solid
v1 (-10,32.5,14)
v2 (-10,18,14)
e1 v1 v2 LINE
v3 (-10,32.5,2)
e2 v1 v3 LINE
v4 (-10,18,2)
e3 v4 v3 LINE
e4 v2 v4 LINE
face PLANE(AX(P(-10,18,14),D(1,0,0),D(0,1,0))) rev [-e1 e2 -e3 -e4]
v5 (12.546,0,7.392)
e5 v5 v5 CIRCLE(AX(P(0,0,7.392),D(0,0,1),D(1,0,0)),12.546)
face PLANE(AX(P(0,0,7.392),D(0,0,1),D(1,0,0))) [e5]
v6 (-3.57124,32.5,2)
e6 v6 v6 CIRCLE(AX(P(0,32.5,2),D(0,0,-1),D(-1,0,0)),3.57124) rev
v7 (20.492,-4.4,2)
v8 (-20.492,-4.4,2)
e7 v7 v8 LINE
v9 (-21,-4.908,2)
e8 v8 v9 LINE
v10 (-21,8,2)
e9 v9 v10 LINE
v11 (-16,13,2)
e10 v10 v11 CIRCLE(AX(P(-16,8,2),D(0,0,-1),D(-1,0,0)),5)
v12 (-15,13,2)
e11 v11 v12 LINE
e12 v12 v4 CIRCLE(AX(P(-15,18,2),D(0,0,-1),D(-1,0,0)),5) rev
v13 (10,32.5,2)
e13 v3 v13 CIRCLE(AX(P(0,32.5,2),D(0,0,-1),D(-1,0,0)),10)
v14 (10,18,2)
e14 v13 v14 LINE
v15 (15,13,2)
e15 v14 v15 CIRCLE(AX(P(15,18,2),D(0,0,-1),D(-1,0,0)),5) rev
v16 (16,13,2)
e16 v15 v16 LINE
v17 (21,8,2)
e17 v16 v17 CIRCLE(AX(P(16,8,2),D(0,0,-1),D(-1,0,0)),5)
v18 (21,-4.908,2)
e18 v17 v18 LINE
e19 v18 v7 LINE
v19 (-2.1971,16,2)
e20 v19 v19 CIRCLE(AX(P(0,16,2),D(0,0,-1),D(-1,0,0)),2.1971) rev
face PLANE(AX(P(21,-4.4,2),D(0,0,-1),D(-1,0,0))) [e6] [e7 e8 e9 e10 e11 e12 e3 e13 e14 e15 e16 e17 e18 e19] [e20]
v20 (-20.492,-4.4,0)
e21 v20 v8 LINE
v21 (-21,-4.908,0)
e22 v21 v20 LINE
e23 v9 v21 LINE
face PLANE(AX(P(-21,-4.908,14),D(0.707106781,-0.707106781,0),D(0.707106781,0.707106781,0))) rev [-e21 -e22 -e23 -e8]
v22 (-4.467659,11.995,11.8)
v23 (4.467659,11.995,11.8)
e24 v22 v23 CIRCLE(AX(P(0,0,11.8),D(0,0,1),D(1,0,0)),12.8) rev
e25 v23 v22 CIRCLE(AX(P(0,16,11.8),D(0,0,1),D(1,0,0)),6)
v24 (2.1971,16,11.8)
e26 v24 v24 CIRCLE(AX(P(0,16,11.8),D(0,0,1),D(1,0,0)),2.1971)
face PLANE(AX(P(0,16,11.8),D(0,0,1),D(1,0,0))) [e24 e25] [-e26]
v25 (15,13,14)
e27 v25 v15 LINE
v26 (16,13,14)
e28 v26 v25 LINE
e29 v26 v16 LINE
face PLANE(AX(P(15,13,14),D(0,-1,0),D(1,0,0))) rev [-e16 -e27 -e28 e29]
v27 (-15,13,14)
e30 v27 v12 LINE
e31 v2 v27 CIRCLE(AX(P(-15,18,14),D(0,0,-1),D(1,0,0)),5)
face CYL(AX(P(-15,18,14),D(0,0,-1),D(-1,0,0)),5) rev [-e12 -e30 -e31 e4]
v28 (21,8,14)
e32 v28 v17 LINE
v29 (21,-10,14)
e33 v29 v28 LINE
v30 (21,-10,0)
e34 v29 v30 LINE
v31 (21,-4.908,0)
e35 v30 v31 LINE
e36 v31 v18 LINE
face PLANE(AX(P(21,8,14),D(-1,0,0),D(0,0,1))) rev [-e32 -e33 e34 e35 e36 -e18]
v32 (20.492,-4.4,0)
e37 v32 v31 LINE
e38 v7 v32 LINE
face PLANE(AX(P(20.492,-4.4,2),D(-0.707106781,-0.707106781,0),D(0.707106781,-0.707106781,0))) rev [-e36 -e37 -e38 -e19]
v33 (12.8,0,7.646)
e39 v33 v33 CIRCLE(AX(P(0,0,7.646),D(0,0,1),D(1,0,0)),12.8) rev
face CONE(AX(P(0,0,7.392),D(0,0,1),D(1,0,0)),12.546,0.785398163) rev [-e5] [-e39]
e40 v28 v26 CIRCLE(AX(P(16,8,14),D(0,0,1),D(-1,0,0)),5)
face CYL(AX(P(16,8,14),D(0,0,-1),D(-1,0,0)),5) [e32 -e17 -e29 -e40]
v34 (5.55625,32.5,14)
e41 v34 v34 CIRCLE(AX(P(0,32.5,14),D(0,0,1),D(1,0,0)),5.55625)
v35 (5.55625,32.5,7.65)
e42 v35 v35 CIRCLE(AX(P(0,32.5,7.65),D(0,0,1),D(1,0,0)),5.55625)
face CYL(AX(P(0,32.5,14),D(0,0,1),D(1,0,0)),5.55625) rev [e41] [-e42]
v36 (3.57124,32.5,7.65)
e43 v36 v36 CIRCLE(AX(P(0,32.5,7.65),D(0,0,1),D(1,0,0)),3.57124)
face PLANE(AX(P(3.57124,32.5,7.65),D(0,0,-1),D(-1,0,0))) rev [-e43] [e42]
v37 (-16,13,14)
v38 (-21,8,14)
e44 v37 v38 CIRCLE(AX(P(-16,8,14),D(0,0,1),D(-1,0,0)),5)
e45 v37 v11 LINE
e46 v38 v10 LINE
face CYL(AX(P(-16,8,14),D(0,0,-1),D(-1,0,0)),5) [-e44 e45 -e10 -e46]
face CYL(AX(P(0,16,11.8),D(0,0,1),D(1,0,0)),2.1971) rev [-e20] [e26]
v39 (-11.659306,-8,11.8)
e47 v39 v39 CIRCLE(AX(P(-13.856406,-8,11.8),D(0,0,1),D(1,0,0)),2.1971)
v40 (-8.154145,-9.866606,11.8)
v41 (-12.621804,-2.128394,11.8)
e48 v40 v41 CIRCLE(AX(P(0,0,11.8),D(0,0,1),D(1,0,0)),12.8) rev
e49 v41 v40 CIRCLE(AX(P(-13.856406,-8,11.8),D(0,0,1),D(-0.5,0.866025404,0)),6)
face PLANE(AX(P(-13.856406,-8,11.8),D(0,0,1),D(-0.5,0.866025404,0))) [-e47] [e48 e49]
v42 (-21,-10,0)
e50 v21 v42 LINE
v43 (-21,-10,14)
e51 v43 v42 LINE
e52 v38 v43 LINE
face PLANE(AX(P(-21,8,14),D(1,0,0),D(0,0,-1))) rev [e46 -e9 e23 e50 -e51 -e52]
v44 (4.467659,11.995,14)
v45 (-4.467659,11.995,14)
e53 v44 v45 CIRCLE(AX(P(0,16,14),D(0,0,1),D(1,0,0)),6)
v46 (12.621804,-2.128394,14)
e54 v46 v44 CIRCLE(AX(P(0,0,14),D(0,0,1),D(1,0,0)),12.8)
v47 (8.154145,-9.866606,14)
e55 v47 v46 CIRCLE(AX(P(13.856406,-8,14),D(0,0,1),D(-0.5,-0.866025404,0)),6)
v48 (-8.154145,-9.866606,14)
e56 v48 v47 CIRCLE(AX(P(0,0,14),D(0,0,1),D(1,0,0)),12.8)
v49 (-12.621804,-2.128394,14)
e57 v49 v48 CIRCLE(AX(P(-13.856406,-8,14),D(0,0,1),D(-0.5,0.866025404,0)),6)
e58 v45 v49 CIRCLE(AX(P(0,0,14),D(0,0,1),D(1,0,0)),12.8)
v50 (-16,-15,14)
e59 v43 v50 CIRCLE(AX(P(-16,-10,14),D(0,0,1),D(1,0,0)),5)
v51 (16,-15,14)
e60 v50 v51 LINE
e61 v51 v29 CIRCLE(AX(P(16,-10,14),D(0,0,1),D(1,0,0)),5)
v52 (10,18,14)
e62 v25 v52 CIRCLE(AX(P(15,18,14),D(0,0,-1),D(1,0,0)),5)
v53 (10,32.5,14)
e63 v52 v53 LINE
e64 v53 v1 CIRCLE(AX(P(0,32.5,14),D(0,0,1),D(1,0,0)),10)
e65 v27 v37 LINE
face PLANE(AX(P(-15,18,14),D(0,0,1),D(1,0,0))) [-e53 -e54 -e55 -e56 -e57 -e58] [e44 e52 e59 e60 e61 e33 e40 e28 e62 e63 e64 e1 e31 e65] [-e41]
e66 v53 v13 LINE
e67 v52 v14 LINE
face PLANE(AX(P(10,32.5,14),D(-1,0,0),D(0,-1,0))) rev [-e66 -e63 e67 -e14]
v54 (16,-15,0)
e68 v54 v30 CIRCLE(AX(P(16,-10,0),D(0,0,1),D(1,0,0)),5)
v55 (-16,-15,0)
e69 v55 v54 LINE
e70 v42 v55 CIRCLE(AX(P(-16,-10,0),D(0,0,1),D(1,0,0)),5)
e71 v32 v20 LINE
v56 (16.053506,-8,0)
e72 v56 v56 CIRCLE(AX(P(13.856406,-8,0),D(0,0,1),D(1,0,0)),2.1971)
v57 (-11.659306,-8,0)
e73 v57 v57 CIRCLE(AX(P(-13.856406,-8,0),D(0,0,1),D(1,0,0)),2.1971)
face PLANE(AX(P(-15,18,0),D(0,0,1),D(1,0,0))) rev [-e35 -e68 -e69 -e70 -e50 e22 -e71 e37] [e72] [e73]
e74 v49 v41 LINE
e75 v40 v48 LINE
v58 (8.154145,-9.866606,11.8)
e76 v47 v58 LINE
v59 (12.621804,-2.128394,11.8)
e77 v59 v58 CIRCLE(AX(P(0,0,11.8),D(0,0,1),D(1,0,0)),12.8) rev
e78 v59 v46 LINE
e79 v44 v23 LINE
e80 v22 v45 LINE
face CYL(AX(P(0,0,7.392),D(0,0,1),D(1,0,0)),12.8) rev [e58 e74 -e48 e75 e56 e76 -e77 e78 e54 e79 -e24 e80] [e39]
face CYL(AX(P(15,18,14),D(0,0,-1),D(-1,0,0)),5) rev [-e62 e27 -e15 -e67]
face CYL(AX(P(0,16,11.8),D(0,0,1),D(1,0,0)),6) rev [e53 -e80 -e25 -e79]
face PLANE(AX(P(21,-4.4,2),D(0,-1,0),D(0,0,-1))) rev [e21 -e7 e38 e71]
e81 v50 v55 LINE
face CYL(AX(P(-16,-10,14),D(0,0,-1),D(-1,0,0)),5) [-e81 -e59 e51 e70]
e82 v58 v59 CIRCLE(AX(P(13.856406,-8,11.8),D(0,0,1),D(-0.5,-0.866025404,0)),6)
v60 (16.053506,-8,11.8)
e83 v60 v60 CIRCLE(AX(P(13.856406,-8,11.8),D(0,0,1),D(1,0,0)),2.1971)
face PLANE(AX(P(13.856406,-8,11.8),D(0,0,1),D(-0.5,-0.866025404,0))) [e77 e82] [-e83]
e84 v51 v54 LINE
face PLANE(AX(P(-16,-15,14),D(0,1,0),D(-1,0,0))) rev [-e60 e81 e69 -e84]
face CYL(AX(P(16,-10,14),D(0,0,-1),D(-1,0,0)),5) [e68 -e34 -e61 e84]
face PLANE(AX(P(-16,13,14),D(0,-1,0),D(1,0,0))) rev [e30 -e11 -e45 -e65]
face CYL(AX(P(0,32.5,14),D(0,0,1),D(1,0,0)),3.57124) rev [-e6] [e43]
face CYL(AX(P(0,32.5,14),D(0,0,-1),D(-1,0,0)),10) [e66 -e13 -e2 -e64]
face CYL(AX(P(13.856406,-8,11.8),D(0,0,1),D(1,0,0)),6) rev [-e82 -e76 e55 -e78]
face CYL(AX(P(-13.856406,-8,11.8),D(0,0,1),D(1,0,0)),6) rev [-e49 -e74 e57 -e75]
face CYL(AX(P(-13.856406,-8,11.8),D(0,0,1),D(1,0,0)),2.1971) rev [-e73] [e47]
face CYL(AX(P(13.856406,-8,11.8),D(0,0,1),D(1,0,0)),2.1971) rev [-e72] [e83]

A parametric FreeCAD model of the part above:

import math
import FreeCAD as App
import Part
import Sketcher
Q = App.Units.Quantity


def edges_at(feature, points):
    """Names of the edges that pass closest to the given points."""
    edges = feature.Shape.Edges
    near = lambda p: min(range(len(edges)), key=lambda i: edges[i].distToShape(Part.Vertex(*p))[0])
    return sorted({f"Edge{near(p) + 1}" for p in points})


def add_polygon(sketch, points):
    """Adds a closed chain of lines whose ends are joined by coincident constraints."""
    first, n = sketch.GeometryCount, len(points)
    for a, b in zip(points, points[1:] + points[:1]):
        sketch.addGeometry(Part.LineSegment(App.Vector(*a, 0), App.Vector(*b, 0)), False)
    for i in range(n):
        sketch.addConstraint(Sketcher.Constraint("Coincident", first + i, 2, first + (i + 1) % n, 1))

doc = App.newDocument("Part")
body = doc.addObject("PartDesign::Body", "Body")

sketch1 = doc.addObject("Sketcher::SketchObject", "Sketch")
body.addObject(sketch1)
sketch1.AttachmentSupport = (doc.XY_Plane, [""])
sketch1.MapMode = "FlatFace"
sketch1.addGeometry(Part.LineSegment(App.Vector(-10, 32.5, 0), App.Vector(-10, 18, 0)), False)
sketch1.addGeometry(Part.ArcOfCircle(Part.Circle(App.Vector(-15, 18, 0), App.Vector(0, 0, 1), 5), math.radians(-90), math.radians(0)), False)
sketch1.addGeometry(Part.LineSegment(App.Vector(-15, 13, 0), App.Vector(-16, 13, 0)), False)
sketch1.addGeometry(Part.ArcOfCircle(Part.Circle(App.Vector(-16, 8, 0), App.Vector(0, 0, 1), 5), math.radians(90), math.radians(180)), False)
sketch1.addGeometry(Part.LineSegment(App.Vector(-21, 8, 0), App.Vector(-21, -10, 0)), False)
sketch1.addGeometry(Part.ArcOfCircle(Part.Circle(App.Vector(-16, -10, 0), App.Vector(0, 0, 1), 5), math.radians(180), math.radians(270)), False)
sketch1.addGeometry(Part.LineSegment(App.Vector(-16, -15, 0), App.Vector(16, -15, 0)), False)
sketch1.addGeometry(Part.ArcOfCircle(Part.Circle(App.Vector(16, -10, 0), App.Vector(0, 0, 1), 5), math.radians(-90), math.radians(0)), False)
sketch1.addGeometry(Part.LineSegment(App.Vector(21, -10, 0), App.Vector(21, 8, 0)), False)
sketch1.addGeometry(Part.ArcOfCircle(Part.Circle(App.Vector(16, 8, 0), App.Vector(0, 0, 1), 5), math.radians(0), math.radians(90)), False)
sketch1.addGeometry(Part.LineSegment(App.Vector(16, 13, 0), App.Vector(15, 13, 0)), False)
sketch1.addGeometry(Part.ArcOfCircle(Part.Circle(App.Vector(15, 18, 0), App.Vector(0, 0, 1), 5), math.radians(180), math.radians(270)), False)
sketch1.addGeometry(Part.LineSegment(App.Vector(10, 18, 0), App.Vector(10, 32.5, 0)), False)
sketch1.addGeometry(Part.ArcOfCircle(Part.Circle(App.Vector(0, 32.5, 0), App.Vector(0, 0, 1), 10), math.radians(0), math.radians(180)), False)
sketch1.addConstraint(Sketcher.Constraint("Tangent", 0, 2, 1, 2))
sketch1.addConstraint(Sketcher.Constraint("Tangent", 1, 1, 2, 1))
sketch1.addConstraint(Sketcher.Constraint("Tangent", 2, 2, 3, 1))
sketch1.addConstraint(Sketcher.Constraint("Tangent", 3, 2, 4, 1))
sketch1.addConstraint(Sketcher.Constraint("Tangent", 4, 2, 5, 1))
sketch1.addConstraint(Sketcher.Constraint("Tangent", 5, 2, 6, 1))
sketch1.addConstraint(Sketcher.Constraint("Tangent", 6, 2, 7, 1))
sketch1.addConstraint(Sketcher.Constraint("Tangent", 7, 2, 8, 1))
sketch1.addConstraint(Sketcher.Constraint("Tangent", 8, 2, 9, 1))
sketch1.addConstraint(Sketcher.Constraint("Tangent", 9, 2, 10, 1))
sketch1.addConstraint(Sketcher.Constraint("Tangent", 10, 2, 11, 2))
sketch1.addConstraint(Sketcher.Constraint("Tangent", 11, 1, 12, 1))
sketch1.addConstraint(Sketcher.Constraint("Tangent", 12, 2, 13, 1))
sketch1.addConstraint(Sketcher.Constraint("Tangent", 13, 2, 0, 1))
sketch1.addConstraint(Sketcher.Constraint("Vertical", 0))
sketch1.addConstraint(Sketcher.Constraint("Horizontal", 2))
sketch1.addConstraint(Sketcher.Constraint("Vertical", 4))
sketch1.addConstraint(Sketcher.Constraint("Horizontal", 6))
sketch1.addConstraint(Sketcher.Constraint("Vertical", 8))
sketch1.addConstraint(Sketcher.Constraint("Horizontal", 10))
sketch1.addConstraint(Sketcher.Constraint("Vertical", 12))
sketch1.addConstraint(Sketcher.Constraint("Equal", 1, 3))
sketch1.addConstraint(Sketcher.Constraint("Equal", 3, 5))
sketch1.addConstraint(Sketcher.Constraint("Equal", 5, 7))
sketch1.addConstraint(Sketcher.Constraint("Equal", 7, 9))
sketch1.addConstraint(Sketcher.Constraint("Equal", 9, 11))
sketch1.addConstraint(Sketcher.Constraint("Symmetric", 3, 3, 9, 3, -2))
sketch1.addConstraint(Sketcher.Constraint("PointOnObject", 13, 3, -2))
sketch1.addConstraint(Sketcher.Constraint("Radius", 1, Q("5 mm")))
sketch1.addConstraint(Sketcher.Constraint("Radius", 13, Q("10 mm")))
sketch1.addConstraint(Sketcher.Constraint("DistanceX", 2, 2, 2, 1, Q("1 mm")))
sketch1.addConstraint(Sketcher.Constraint("DistanceY", 4, 2, 4, 1, Q("18 mm")))
sketch1.addConstraint(Sketcher.Constraint("DistanceY", 0, 2, 0, 1, Q("14.5 mm")))
sketch1.addConstraint(Sketcher.Constraint("DistanceY", -1, 1, 1, 3, Q("18 mm")))
pad1 = doc.addObject("PartDesign::Pad", "Pad")
body.addObject(pad1)
pad1.Profile = sketch1
pad1.Length = 14

sketch2 = doc.addObject("Sketcher::SketchObject", "Sketch001")
body.addObject(sketch2)
sketch2.AttachmentSupport = (doc.XY_Plane, [""])
sketch2.MapMode = "FlatFace"
sketch2.AttachmentOffset = App.Placement(App.Vector(0, 0, 14), App.Rotation())
sketch2.addGeometry(Part.Circle(App.Vector(0, 0, 0), App.Vector(0, 0, 1), 12.8), False)
sketch2.addConstraint(Sketcher.Constraint("Coincident", 0, 3, -1, 1))
sketch2.addConstraint(Sketcher.Constraint("Diameter", 0, Q("25.6 mm")))
pocket1 = doc.addObject("PartDesign::Pocket", "Pocket")
body.addObject(pocket1)
pocket1.Profile = sketch2
pocket1.Length = 6.608

sketch3 = doc.addObject("Sketcher::SketchObject", "Sketch002")
body.addObject(sketch3)
sketch3.AttachmentSupport = (doc.XY_Plane, [""])
sketch3.MapMode = "FlatFace"
sketch3.AttachmentOffset = App.Placement(App.Vector(0, 0, 14), App.Rotation())
sketch3.addGeometry(Part.Circle(App.Vector(0, 32.5, 0), App.Vector(0, 0, 1), 3.57124), False)
sketch3.addConstraint(Sketcher.Constraint("PointOnObject", 0, 3, -2))
sketch3.addConstraint(Sketcher.Constraint("DistanceY", -1, 1, 0, 3, Q("32.5 mm")))
sketch3.addConstraint(Sketcher.Constraint("Diameter", 0, Q("7.14248 mm")))
doc.recompute()
hole = doc.addObject("PartDesign::Hole", "Hole")
body.addObject(hole)
hole.Profile = sketch3
hole.ThreadType = "None"
hole.Diameter = 7.14248
hole.DepthType = "ThroughAll"
hole.HoleCutType = "Counterbore"
hole.HoleCutDiameter = 11.1125
hole.HoleCutDepth = 6.35

sketch4 = doc.addObject("Sketcher::SketchObject", "Sketch003")
body.addObject(sketch4)
sketch4.AttachmentSupport = (doc.XY_Plane, [""])
sketch4.MapMode = "FlatFace"
sketch4.AttachmentOffset = App.Placement(App.Vector(0, 0, 14), App.Rotation())
sketch4.addGeometry(Part.Circle(App.Vector(0, 16, 0), App.Vector(0, 0, 1), 6), False)
sketch4.addConstraint(Sketcher.Constraint("PointOnObject", 0, 3, -2))
sketch4.addConstraint(Sketcher.Constraint("Diameter", 0, Q("12 mm")))
sketch4.addConstraint(Sketcher.Constraint("DistanceY", -1, 1, 0, 3, Q("16 mm")))
pocket2 = doc.addObject("PartDesign::Pocket", "Pocket001")
body.addObject(pocket2)
pocket2.Profile = sketch4
pocket2.Length = 2.2
doc.recompute()

polarpattern = doc.addObject("PartDesign::PolarPattern", "PolarPattern")
body.addObject(polarpattern)
polarpattern.Originals = [pocket2]
polarpattern.Axis = (doc.Z_Axis, [""])
polarpattern.Angle = 360
polarpattern.Occurrences = 3
body.Tip = polarpattern

sketch5 = doc.addObject("Sketcher::SketchObject", "Sketch004")
body.addObject(sketch5)
sketch5.AttachmentSupport = (doc.XY_Plane, [""])
sketch5.MapMode = "FlatFace"
sketch5.AttachmentOffset = App.Placement(App.Vector(0, 0, 11.8), App.Rotation())
sketch5.addGeometry(Part.Circle(App.Vector(0, 16, 0), App.Vector(0, 0, 1), 2.1971), False)
sketch5.addGeometry(Part.Circle(App.Vector(-13.856406, -8, 0), App.Vector(0, 0, 1), 2.1971), False)
sketch5.addGeometry(Part.Circle(App.Vector(13.856406, -8, 0), App.Vector(0, 0, 1), 2.1971), False)
sketch5.addConstraint(Sketcher.Constraint("Equal", 0, 1))
sketch5.addConstraint(Sketcher.Constraint("Equal", 1, 2))
sketch5.addConstraint(Sketcher.Constraint("Symmetric", 1, 3, 2, 3, -2))
sketch5.addConstraint(Sketcher.Constraint("PointOnObject", 0, 3, -2))
sketch5.addConstraint(Sketcher.Constraint("DistanceY", -1, 1, 0, 3, Q("16 mm")))
sketch5.addConstraint(Sketcher.Constraint("DistanceY", 1, 3, -1, 1, Q("8 mm")))
sketch5.addConstraint(Sketcher.Constraint("Diameter", 0, Q("4.3942 mm")))
sketch5.addConstraint(Sketcher.Constraint("DistanceX", 1, 3, -1, 1, Q("13.856406 mm")))
doc.recompute()
hole2 = doc.addObject("PartDesign::Hole", "Hole001")
body.addObject(hole2)
hole2.Profile = sketch5
hole2.ThreadType = "None"
hole2.Diameter = 4.3942
hole2.DepthType = "Dimension"
hole2.Depth = 13.322
hole2.DrillPoint = "Angled"
hole2.DrillPointAngle = 118

sketch6 = doc.addObject("Sketcher::SketchObject", "Sketch005")
body.addObject(sketch6)
sketch6.AttachmentSupport = (doc.XY_Plane, [""])
sketch6.MapMode = "FlatFace"
add_polygon(sketch6, [(21, 42.5), (21, -4.4), (-21, -4.4), (-21, 42.5)])
sketch6.addConstraint(Sketcher.Constraint("Vertical", 0))
sketch6.addConstraint(Sketcher.Constraint("Horizontal", 1))
sketch6.addConstraint(Sketcher.Constraint("Vertical", 2))
sketch6.addConstraint(Sketcher.Constraint("Horizontal", 3))
sketch6.addConstraint(Sketcher.Constraint("DistanceX", 1, 2, 1, 1, Q("42 mm")))
sketch6.addConstraint(Sketcher.Constraint("DistanceY", 0, 2, 0, 1, Q("46.9 mm")))
sketch6.addConstraint(Sketcher.Constraint("DistanceX", -1, 1, 0, 2, Q("21 mm")))
sketch6.addConstraint(Sketcher.Constraint("DistanceY", 0, 2, -1, 1, Q("4.4 mm")))
pocket3 = doc.addObject("PartDesign::Pocket", "Pocket002")
body.addObject(pocket3)
pocket3.Profile = sketch6
pocket3.Length = 2
pocket3.Reversed = True
doc.recompute()

chamfer = doc.addObject("PartDesign::Chamfer", "Chamfer")
body.addObject(chamfer)
chamfer.Base = (pocket3, edges_at(pocket3, [(21, -4.4, 1), (-21, -4.4, 1)]))
chamfer.Size = 0.508
doc.recompute()

chamfer2 = doc.addObject("PartDesign::Chamfer", "Chamfer001")
body.addObject(chamfer2)
chamfer2.Base = (chamfer, edges_at(chamfer, [(-12.8, 0, 7.392)]))
chamfer2.Size = 0.254

doc.recompute()
